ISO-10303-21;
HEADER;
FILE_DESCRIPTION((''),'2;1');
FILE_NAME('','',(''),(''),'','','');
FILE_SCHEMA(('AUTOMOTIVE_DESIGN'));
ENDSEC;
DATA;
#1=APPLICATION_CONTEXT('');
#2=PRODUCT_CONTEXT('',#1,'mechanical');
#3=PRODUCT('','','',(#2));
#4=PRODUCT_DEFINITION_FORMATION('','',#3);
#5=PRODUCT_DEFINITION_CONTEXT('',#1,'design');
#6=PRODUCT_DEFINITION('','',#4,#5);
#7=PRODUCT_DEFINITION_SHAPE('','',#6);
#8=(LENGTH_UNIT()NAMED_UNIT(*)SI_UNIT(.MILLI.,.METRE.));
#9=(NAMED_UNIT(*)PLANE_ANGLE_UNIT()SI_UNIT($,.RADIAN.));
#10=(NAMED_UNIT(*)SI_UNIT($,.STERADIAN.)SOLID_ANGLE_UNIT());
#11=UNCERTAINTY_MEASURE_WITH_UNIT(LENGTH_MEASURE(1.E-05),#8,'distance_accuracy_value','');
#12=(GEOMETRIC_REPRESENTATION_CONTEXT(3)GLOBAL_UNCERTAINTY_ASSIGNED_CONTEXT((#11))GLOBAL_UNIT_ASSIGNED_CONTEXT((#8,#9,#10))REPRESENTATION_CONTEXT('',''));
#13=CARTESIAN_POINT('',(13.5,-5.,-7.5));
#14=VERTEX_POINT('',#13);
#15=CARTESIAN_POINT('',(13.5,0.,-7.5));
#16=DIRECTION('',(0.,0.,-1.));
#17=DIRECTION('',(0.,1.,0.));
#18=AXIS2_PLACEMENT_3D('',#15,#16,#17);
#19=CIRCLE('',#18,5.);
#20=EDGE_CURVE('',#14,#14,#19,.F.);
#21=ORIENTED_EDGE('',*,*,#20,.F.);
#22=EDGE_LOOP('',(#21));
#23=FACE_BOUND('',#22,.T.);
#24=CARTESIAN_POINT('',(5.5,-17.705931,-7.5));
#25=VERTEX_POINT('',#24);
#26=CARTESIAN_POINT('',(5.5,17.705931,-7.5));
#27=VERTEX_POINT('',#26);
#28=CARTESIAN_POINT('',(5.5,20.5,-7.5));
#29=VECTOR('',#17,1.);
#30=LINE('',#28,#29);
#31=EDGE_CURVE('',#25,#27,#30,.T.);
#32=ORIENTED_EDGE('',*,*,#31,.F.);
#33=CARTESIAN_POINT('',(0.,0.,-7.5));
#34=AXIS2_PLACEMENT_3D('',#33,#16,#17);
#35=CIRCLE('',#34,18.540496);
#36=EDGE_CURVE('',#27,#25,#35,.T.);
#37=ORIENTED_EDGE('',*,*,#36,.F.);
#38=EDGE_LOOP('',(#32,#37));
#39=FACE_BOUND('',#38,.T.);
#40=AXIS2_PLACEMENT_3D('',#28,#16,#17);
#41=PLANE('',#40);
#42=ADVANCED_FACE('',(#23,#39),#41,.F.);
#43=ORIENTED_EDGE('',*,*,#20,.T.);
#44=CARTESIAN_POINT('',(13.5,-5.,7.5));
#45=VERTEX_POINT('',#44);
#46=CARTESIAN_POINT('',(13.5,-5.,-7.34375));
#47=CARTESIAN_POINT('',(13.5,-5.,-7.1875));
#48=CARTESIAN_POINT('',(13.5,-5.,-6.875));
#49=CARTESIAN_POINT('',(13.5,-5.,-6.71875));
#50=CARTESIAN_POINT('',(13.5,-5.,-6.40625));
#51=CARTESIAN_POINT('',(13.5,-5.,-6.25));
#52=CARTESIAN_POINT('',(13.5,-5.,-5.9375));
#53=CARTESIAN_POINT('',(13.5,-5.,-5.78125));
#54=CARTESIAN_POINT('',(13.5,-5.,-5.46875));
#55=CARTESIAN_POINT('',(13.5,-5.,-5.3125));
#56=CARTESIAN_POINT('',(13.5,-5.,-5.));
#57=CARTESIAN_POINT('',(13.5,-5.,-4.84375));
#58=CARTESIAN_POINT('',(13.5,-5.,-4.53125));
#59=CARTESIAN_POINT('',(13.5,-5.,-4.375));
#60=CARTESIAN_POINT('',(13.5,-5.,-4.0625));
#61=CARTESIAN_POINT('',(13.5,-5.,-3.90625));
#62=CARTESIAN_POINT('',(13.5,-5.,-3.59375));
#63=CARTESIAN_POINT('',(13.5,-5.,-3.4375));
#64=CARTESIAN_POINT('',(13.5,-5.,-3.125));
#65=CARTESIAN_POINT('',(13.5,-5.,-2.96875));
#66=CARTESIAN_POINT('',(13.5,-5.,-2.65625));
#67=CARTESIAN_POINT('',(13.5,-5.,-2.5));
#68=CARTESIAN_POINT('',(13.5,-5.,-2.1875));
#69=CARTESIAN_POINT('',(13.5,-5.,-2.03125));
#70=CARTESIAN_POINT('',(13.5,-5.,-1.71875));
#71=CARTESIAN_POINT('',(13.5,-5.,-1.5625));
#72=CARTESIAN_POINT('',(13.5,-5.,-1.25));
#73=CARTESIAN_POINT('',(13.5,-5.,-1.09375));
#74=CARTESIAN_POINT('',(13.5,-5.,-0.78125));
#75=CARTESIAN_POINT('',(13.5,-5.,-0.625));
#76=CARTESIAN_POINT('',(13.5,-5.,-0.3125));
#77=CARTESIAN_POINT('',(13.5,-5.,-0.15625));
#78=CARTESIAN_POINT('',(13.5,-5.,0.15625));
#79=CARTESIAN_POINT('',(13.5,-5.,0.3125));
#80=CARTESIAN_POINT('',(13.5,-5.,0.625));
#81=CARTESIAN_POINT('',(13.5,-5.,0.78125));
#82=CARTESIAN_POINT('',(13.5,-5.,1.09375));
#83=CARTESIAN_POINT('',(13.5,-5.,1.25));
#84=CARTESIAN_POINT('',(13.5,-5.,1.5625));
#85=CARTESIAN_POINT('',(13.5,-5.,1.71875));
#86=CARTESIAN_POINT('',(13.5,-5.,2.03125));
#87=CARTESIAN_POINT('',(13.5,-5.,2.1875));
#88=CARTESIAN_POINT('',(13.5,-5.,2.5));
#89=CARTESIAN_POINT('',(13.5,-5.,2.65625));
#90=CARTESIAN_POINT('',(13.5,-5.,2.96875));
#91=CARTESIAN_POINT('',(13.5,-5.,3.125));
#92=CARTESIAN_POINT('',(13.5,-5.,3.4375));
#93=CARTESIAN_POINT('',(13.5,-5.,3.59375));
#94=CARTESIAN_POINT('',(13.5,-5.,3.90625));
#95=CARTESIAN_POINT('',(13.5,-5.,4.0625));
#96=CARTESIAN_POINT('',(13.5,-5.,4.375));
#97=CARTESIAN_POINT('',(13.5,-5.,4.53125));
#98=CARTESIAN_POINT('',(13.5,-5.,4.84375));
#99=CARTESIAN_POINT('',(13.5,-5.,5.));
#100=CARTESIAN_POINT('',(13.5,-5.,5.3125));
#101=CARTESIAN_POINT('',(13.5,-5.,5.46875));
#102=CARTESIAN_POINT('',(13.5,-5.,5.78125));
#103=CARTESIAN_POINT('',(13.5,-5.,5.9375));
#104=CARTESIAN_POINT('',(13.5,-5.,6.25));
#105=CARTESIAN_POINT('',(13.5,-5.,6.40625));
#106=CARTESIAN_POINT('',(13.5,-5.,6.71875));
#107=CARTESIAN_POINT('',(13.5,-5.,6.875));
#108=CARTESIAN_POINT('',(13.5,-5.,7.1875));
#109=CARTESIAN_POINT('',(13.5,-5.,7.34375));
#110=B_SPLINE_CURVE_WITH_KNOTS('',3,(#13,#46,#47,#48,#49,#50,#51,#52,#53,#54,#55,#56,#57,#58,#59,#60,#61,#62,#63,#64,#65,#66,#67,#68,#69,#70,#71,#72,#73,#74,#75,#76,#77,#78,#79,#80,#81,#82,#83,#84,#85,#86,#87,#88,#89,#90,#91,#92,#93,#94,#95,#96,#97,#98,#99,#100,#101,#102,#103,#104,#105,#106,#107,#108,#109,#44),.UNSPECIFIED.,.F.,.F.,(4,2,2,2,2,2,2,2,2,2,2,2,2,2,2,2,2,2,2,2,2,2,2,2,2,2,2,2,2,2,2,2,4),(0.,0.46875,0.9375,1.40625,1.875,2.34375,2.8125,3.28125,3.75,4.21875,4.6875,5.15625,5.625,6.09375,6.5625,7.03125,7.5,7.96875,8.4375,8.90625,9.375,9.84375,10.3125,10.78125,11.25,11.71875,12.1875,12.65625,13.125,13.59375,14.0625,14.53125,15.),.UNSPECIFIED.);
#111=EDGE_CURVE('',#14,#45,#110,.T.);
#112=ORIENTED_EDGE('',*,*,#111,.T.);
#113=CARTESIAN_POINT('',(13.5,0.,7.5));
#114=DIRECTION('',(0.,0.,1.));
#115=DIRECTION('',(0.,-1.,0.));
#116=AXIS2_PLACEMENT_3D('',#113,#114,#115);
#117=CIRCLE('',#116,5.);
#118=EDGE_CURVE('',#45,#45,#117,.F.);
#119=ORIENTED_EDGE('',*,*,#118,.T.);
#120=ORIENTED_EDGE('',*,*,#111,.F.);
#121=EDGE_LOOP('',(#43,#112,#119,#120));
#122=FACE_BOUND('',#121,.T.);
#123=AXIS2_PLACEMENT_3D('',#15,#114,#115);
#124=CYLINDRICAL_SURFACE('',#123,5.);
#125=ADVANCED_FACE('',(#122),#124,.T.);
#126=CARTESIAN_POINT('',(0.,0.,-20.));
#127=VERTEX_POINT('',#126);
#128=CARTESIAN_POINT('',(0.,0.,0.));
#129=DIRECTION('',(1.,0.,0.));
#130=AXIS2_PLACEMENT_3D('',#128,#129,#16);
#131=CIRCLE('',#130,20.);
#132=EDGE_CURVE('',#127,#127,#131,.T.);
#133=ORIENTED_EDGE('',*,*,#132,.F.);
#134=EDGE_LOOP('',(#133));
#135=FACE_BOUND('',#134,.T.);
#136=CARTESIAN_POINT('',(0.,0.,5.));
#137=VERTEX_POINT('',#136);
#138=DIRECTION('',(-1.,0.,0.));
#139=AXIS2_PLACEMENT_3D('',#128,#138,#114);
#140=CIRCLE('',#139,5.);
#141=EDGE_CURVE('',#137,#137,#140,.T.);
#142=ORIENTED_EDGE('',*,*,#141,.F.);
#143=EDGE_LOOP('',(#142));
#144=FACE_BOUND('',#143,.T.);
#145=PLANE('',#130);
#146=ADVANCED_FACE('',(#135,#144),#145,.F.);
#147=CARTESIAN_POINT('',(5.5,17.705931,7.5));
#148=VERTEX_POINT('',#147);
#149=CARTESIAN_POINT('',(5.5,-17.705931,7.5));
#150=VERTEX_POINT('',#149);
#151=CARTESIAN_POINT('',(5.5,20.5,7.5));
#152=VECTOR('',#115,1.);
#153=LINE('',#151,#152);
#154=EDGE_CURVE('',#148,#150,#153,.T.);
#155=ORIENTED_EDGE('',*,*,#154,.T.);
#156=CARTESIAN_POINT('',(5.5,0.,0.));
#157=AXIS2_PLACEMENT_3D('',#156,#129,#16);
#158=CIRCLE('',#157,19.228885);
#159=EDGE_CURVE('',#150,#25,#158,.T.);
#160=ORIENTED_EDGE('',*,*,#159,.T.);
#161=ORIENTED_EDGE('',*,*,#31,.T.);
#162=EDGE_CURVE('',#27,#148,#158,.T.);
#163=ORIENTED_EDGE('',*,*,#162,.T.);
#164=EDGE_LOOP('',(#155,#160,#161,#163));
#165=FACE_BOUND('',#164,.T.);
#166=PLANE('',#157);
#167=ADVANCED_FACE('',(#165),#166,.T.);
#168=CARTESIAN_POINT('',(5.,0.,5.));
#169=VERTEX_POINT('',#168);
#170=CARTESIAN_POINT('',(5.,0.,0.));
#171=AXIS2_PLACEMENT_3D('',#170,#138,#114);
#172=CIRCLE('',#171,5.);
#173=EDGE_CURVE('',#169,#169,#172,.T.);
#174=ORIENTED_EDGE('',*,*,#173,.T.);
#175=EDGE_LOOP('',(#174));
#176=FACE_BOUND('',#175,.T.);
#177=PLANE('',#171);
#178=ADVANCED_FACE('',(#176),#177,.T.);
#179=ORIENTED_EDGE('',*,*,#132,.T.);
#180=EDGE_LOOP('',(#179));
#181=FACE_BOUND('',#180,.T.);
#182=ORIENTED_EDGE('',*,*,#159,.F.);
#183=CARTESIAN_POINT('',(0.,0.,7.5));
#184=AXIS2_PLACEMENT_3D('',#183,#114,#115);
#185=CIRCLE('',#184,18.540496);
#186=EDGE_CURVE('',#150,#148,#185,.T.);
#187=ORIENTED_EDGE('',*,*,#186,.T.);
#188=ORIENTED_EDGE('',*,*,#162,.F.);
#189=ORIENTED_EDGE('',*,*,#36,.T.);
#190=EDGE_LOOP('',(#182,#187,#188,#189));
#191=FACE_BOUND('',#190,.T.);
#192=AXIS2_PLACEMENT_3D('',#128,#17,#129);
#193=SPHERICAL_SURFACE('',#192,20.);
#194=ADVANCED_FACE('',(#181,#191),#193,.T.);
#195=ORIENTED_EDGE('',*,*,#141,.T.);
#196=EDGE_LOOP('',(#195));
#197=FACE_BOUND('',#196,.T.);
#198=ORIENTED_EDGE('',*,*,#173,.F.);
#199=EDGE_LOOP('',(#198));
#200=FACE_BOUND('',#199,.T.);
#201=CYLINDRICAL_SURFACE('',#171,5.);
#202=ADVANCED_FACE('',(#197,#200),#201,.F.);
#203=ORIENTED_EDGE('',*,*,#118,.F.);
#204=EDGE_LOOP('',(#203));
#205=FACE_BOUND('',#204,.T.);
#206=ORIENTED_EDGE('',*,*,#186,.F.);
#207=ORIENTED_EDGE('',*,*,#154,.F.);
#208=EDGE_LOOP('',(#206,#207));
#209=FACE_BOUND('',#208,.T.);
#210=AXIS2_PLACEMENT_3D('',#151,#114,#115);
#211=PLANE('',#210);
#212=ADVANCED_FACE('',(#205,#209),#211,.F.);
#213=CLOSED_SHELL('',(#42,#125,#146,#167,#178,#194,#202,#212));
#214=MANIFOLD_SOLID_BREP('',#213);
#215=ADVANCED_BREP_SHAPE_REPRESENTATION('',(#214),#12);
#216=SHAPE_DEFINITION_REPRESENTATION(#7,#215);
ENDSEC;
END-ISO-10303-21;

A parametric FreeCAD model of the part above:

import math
import FreeCAD as App
import Part
import Sketcher
from FreeCAD import Vector

doc = App.newDocument("Part")
body = doc.addObject("PartDesign::Body", "Body")

# Sketch on XY plane
sketch1 = body.newObject("Sketcher::SketchObject", "Sketch")
sketch1.AttachmentSupport = (doc.getObject("XY_Plane"), [""])
sketch1.MapMode = "FlatFace"
sketch1.addGeometry([
    Part.LineSegment(Vector(0, 20, 0), Vector(0, -20, 0)),
    Part.ArcOfCircle(Part.Circle(Vector(0, 0, 0), Vector(0, 0, 1), 20), math.radians(-90), math.radians(90)),
], False)
sketch1.addConstraint([
    Sketcher.Constraint("Coincident", 0, 1, 1, 2),
    Sketcher.Constraint("Coincident", 1, 1, 0, 2),
    Sketcher.Constraint("Vertical", 0),
    Sketcher.Constraint("Coincident", 1, 3, -1, 1),
    Sketcher.Constraint("PointOnObject", 0, 1, -2),
    Sketcher.Constraint("Radius", 1, 20.0),
])
revolution = body.newObject("PartDesign::Revolution", "Revolution")
revolution.Profile = sketch1
revolution.ReferenceAxis = (sketch1, ["V_Axis"])
revolution.Angle = 360

# Sketch on YZ plane
sketch2 = body.newObject("Sketcher::SketchObject", "Sketch001")
sketch2.AttachmentSupport = (doc.getObject("YZ_Plane"), [""])
sketch2.MapMode = "FlatFace"
sketch2.addGeometry(Part.Circle(Vector(0, 0, 0), Vector(0, 0, 1), 20), False)
sketch2.addConstraint([
    Sketcher.Constraint("Coincident", 0, 3, -1, 1),
    Sketcher.Constraint("Diameter", 0, 40.0),
])
pocket1 = body.newObject("PartDesign::Pocket", "Pocket")
pocket1.Profile = sketch2
pocket1.Length = 30

# Sketch on YZ plane
sketch3 = body.newObject("Sketcher::SketchObject", "Sketch002")
sketch3.AttachmentSupport = (doc.getObject("YZ_Plane"), [""])
sketch3.MapMode = "FlatFace"
sketch3.AttachmentOffset = App.Placement(Vector(0, 0, 20), App.Rotation())
sketch3.addGeometry([
    Part.LineSegment(Vector(20.5, 7.5, 0), Vector(-20.5, 7.5, 0)),
    Part.LineSegment(Vector(-20.5, 7.5, 0), Vector(-20.5, -7.5, 0)),
    Part.LineSegment(Vector(-20.5, -7.5, 0), Vector(20.5, -7.5, 0)),
    Part.LineSegment(Vector(20.5, -7.5, 0), Vector(20.5, 7.5, 0)),
], False)
sketch3.addConstraint([
    Sketcher.Constraint("Coincident", 0, 2, 1, 1),
    Sketcher.Constraint("Coincident", 1, 2, 2, 1),
    Sketcher.Constraint("Coincident", 2, 2, 3, 1),
    Sketcher.Constraint("Coincident", 3, 2, 0, 1),
    Sketcher.Constraint("Horizontal", 0),
    Sketcher.Constraint("Vertical", 1),
    Sketcher.Constraint("Horizontal", 2),
    Sketcher.Constraint("Vertical", 3),
    Sketcher.Constraint("Symmetric", 0, 2, 2, 2, -1, 1),
    Sketcher.Constraint("DistanceX", 0, 2, 0, 1, 41.0),
    Sketcher.Constraint("DistanceY", 1, 2, 1, 1, 15.0),
])
pocket2 = body.newObject("PartDesign::Pocket", "Pocket001")
pocket2.Profile = sketch3
pocket2.Length = 14.5

# Sketch on XY plane
sketch4 = body.newObject("Sketcher::SketchObject", "Sketch003")
sketch4.AttachmentSupport = (doc.getObject("XY_Plane"), [""])
sketch4.MapMode = "FlatFace"
sketch4.AttachmentOffset = App.Placement(Vector(0, 0, 7.5), App.Rotation())
sketch4.addGeometry(Part.Circle(Vector(13.5, 0, 0), Vector(0, 0, 1), 5), False)
sketch4.addConstraint([
    Sketcher.Constraint("PointOnObject", 0, 3, -1),
    Sketcher.Constraint("Diameter", 0, 10.0),
    Sketcher.Constraint("DistanceX", -1, 1, 0, 3, 13.5),
])
pad1 = body.newObject("PartDesign::Pad", "Pad")
pad1.Profile = sketch4
pad1.Length = 15
pad1.Reversed = True

# Sketch on YZ plane
sketch5 = body.newObject("Sketcher::SketchObject", "Sketch004")
sketch5.AttachmentSupport = (doc.getObject("YZ_Plane"), [""])
sketch5.MapMode = "FlatFace"
sketch5.addGeometry(Part.Circle(Vector(0, 0, 0), Vector(0, 0, 1), 5), False)
sketch5.addConstraint([
    Sketcher.Constraint("Coincident", 0, 3, -1, 1),
    Sketcher.Constraint("Diameter", 0, 10.0),
])
pocket3 = body.newObject("PartDesign::Pocket", "Pocket002")
pocket3.Profile = sketch5
pocket3.Length = 5
pocket3.Reversed = True

doc.recompute()
